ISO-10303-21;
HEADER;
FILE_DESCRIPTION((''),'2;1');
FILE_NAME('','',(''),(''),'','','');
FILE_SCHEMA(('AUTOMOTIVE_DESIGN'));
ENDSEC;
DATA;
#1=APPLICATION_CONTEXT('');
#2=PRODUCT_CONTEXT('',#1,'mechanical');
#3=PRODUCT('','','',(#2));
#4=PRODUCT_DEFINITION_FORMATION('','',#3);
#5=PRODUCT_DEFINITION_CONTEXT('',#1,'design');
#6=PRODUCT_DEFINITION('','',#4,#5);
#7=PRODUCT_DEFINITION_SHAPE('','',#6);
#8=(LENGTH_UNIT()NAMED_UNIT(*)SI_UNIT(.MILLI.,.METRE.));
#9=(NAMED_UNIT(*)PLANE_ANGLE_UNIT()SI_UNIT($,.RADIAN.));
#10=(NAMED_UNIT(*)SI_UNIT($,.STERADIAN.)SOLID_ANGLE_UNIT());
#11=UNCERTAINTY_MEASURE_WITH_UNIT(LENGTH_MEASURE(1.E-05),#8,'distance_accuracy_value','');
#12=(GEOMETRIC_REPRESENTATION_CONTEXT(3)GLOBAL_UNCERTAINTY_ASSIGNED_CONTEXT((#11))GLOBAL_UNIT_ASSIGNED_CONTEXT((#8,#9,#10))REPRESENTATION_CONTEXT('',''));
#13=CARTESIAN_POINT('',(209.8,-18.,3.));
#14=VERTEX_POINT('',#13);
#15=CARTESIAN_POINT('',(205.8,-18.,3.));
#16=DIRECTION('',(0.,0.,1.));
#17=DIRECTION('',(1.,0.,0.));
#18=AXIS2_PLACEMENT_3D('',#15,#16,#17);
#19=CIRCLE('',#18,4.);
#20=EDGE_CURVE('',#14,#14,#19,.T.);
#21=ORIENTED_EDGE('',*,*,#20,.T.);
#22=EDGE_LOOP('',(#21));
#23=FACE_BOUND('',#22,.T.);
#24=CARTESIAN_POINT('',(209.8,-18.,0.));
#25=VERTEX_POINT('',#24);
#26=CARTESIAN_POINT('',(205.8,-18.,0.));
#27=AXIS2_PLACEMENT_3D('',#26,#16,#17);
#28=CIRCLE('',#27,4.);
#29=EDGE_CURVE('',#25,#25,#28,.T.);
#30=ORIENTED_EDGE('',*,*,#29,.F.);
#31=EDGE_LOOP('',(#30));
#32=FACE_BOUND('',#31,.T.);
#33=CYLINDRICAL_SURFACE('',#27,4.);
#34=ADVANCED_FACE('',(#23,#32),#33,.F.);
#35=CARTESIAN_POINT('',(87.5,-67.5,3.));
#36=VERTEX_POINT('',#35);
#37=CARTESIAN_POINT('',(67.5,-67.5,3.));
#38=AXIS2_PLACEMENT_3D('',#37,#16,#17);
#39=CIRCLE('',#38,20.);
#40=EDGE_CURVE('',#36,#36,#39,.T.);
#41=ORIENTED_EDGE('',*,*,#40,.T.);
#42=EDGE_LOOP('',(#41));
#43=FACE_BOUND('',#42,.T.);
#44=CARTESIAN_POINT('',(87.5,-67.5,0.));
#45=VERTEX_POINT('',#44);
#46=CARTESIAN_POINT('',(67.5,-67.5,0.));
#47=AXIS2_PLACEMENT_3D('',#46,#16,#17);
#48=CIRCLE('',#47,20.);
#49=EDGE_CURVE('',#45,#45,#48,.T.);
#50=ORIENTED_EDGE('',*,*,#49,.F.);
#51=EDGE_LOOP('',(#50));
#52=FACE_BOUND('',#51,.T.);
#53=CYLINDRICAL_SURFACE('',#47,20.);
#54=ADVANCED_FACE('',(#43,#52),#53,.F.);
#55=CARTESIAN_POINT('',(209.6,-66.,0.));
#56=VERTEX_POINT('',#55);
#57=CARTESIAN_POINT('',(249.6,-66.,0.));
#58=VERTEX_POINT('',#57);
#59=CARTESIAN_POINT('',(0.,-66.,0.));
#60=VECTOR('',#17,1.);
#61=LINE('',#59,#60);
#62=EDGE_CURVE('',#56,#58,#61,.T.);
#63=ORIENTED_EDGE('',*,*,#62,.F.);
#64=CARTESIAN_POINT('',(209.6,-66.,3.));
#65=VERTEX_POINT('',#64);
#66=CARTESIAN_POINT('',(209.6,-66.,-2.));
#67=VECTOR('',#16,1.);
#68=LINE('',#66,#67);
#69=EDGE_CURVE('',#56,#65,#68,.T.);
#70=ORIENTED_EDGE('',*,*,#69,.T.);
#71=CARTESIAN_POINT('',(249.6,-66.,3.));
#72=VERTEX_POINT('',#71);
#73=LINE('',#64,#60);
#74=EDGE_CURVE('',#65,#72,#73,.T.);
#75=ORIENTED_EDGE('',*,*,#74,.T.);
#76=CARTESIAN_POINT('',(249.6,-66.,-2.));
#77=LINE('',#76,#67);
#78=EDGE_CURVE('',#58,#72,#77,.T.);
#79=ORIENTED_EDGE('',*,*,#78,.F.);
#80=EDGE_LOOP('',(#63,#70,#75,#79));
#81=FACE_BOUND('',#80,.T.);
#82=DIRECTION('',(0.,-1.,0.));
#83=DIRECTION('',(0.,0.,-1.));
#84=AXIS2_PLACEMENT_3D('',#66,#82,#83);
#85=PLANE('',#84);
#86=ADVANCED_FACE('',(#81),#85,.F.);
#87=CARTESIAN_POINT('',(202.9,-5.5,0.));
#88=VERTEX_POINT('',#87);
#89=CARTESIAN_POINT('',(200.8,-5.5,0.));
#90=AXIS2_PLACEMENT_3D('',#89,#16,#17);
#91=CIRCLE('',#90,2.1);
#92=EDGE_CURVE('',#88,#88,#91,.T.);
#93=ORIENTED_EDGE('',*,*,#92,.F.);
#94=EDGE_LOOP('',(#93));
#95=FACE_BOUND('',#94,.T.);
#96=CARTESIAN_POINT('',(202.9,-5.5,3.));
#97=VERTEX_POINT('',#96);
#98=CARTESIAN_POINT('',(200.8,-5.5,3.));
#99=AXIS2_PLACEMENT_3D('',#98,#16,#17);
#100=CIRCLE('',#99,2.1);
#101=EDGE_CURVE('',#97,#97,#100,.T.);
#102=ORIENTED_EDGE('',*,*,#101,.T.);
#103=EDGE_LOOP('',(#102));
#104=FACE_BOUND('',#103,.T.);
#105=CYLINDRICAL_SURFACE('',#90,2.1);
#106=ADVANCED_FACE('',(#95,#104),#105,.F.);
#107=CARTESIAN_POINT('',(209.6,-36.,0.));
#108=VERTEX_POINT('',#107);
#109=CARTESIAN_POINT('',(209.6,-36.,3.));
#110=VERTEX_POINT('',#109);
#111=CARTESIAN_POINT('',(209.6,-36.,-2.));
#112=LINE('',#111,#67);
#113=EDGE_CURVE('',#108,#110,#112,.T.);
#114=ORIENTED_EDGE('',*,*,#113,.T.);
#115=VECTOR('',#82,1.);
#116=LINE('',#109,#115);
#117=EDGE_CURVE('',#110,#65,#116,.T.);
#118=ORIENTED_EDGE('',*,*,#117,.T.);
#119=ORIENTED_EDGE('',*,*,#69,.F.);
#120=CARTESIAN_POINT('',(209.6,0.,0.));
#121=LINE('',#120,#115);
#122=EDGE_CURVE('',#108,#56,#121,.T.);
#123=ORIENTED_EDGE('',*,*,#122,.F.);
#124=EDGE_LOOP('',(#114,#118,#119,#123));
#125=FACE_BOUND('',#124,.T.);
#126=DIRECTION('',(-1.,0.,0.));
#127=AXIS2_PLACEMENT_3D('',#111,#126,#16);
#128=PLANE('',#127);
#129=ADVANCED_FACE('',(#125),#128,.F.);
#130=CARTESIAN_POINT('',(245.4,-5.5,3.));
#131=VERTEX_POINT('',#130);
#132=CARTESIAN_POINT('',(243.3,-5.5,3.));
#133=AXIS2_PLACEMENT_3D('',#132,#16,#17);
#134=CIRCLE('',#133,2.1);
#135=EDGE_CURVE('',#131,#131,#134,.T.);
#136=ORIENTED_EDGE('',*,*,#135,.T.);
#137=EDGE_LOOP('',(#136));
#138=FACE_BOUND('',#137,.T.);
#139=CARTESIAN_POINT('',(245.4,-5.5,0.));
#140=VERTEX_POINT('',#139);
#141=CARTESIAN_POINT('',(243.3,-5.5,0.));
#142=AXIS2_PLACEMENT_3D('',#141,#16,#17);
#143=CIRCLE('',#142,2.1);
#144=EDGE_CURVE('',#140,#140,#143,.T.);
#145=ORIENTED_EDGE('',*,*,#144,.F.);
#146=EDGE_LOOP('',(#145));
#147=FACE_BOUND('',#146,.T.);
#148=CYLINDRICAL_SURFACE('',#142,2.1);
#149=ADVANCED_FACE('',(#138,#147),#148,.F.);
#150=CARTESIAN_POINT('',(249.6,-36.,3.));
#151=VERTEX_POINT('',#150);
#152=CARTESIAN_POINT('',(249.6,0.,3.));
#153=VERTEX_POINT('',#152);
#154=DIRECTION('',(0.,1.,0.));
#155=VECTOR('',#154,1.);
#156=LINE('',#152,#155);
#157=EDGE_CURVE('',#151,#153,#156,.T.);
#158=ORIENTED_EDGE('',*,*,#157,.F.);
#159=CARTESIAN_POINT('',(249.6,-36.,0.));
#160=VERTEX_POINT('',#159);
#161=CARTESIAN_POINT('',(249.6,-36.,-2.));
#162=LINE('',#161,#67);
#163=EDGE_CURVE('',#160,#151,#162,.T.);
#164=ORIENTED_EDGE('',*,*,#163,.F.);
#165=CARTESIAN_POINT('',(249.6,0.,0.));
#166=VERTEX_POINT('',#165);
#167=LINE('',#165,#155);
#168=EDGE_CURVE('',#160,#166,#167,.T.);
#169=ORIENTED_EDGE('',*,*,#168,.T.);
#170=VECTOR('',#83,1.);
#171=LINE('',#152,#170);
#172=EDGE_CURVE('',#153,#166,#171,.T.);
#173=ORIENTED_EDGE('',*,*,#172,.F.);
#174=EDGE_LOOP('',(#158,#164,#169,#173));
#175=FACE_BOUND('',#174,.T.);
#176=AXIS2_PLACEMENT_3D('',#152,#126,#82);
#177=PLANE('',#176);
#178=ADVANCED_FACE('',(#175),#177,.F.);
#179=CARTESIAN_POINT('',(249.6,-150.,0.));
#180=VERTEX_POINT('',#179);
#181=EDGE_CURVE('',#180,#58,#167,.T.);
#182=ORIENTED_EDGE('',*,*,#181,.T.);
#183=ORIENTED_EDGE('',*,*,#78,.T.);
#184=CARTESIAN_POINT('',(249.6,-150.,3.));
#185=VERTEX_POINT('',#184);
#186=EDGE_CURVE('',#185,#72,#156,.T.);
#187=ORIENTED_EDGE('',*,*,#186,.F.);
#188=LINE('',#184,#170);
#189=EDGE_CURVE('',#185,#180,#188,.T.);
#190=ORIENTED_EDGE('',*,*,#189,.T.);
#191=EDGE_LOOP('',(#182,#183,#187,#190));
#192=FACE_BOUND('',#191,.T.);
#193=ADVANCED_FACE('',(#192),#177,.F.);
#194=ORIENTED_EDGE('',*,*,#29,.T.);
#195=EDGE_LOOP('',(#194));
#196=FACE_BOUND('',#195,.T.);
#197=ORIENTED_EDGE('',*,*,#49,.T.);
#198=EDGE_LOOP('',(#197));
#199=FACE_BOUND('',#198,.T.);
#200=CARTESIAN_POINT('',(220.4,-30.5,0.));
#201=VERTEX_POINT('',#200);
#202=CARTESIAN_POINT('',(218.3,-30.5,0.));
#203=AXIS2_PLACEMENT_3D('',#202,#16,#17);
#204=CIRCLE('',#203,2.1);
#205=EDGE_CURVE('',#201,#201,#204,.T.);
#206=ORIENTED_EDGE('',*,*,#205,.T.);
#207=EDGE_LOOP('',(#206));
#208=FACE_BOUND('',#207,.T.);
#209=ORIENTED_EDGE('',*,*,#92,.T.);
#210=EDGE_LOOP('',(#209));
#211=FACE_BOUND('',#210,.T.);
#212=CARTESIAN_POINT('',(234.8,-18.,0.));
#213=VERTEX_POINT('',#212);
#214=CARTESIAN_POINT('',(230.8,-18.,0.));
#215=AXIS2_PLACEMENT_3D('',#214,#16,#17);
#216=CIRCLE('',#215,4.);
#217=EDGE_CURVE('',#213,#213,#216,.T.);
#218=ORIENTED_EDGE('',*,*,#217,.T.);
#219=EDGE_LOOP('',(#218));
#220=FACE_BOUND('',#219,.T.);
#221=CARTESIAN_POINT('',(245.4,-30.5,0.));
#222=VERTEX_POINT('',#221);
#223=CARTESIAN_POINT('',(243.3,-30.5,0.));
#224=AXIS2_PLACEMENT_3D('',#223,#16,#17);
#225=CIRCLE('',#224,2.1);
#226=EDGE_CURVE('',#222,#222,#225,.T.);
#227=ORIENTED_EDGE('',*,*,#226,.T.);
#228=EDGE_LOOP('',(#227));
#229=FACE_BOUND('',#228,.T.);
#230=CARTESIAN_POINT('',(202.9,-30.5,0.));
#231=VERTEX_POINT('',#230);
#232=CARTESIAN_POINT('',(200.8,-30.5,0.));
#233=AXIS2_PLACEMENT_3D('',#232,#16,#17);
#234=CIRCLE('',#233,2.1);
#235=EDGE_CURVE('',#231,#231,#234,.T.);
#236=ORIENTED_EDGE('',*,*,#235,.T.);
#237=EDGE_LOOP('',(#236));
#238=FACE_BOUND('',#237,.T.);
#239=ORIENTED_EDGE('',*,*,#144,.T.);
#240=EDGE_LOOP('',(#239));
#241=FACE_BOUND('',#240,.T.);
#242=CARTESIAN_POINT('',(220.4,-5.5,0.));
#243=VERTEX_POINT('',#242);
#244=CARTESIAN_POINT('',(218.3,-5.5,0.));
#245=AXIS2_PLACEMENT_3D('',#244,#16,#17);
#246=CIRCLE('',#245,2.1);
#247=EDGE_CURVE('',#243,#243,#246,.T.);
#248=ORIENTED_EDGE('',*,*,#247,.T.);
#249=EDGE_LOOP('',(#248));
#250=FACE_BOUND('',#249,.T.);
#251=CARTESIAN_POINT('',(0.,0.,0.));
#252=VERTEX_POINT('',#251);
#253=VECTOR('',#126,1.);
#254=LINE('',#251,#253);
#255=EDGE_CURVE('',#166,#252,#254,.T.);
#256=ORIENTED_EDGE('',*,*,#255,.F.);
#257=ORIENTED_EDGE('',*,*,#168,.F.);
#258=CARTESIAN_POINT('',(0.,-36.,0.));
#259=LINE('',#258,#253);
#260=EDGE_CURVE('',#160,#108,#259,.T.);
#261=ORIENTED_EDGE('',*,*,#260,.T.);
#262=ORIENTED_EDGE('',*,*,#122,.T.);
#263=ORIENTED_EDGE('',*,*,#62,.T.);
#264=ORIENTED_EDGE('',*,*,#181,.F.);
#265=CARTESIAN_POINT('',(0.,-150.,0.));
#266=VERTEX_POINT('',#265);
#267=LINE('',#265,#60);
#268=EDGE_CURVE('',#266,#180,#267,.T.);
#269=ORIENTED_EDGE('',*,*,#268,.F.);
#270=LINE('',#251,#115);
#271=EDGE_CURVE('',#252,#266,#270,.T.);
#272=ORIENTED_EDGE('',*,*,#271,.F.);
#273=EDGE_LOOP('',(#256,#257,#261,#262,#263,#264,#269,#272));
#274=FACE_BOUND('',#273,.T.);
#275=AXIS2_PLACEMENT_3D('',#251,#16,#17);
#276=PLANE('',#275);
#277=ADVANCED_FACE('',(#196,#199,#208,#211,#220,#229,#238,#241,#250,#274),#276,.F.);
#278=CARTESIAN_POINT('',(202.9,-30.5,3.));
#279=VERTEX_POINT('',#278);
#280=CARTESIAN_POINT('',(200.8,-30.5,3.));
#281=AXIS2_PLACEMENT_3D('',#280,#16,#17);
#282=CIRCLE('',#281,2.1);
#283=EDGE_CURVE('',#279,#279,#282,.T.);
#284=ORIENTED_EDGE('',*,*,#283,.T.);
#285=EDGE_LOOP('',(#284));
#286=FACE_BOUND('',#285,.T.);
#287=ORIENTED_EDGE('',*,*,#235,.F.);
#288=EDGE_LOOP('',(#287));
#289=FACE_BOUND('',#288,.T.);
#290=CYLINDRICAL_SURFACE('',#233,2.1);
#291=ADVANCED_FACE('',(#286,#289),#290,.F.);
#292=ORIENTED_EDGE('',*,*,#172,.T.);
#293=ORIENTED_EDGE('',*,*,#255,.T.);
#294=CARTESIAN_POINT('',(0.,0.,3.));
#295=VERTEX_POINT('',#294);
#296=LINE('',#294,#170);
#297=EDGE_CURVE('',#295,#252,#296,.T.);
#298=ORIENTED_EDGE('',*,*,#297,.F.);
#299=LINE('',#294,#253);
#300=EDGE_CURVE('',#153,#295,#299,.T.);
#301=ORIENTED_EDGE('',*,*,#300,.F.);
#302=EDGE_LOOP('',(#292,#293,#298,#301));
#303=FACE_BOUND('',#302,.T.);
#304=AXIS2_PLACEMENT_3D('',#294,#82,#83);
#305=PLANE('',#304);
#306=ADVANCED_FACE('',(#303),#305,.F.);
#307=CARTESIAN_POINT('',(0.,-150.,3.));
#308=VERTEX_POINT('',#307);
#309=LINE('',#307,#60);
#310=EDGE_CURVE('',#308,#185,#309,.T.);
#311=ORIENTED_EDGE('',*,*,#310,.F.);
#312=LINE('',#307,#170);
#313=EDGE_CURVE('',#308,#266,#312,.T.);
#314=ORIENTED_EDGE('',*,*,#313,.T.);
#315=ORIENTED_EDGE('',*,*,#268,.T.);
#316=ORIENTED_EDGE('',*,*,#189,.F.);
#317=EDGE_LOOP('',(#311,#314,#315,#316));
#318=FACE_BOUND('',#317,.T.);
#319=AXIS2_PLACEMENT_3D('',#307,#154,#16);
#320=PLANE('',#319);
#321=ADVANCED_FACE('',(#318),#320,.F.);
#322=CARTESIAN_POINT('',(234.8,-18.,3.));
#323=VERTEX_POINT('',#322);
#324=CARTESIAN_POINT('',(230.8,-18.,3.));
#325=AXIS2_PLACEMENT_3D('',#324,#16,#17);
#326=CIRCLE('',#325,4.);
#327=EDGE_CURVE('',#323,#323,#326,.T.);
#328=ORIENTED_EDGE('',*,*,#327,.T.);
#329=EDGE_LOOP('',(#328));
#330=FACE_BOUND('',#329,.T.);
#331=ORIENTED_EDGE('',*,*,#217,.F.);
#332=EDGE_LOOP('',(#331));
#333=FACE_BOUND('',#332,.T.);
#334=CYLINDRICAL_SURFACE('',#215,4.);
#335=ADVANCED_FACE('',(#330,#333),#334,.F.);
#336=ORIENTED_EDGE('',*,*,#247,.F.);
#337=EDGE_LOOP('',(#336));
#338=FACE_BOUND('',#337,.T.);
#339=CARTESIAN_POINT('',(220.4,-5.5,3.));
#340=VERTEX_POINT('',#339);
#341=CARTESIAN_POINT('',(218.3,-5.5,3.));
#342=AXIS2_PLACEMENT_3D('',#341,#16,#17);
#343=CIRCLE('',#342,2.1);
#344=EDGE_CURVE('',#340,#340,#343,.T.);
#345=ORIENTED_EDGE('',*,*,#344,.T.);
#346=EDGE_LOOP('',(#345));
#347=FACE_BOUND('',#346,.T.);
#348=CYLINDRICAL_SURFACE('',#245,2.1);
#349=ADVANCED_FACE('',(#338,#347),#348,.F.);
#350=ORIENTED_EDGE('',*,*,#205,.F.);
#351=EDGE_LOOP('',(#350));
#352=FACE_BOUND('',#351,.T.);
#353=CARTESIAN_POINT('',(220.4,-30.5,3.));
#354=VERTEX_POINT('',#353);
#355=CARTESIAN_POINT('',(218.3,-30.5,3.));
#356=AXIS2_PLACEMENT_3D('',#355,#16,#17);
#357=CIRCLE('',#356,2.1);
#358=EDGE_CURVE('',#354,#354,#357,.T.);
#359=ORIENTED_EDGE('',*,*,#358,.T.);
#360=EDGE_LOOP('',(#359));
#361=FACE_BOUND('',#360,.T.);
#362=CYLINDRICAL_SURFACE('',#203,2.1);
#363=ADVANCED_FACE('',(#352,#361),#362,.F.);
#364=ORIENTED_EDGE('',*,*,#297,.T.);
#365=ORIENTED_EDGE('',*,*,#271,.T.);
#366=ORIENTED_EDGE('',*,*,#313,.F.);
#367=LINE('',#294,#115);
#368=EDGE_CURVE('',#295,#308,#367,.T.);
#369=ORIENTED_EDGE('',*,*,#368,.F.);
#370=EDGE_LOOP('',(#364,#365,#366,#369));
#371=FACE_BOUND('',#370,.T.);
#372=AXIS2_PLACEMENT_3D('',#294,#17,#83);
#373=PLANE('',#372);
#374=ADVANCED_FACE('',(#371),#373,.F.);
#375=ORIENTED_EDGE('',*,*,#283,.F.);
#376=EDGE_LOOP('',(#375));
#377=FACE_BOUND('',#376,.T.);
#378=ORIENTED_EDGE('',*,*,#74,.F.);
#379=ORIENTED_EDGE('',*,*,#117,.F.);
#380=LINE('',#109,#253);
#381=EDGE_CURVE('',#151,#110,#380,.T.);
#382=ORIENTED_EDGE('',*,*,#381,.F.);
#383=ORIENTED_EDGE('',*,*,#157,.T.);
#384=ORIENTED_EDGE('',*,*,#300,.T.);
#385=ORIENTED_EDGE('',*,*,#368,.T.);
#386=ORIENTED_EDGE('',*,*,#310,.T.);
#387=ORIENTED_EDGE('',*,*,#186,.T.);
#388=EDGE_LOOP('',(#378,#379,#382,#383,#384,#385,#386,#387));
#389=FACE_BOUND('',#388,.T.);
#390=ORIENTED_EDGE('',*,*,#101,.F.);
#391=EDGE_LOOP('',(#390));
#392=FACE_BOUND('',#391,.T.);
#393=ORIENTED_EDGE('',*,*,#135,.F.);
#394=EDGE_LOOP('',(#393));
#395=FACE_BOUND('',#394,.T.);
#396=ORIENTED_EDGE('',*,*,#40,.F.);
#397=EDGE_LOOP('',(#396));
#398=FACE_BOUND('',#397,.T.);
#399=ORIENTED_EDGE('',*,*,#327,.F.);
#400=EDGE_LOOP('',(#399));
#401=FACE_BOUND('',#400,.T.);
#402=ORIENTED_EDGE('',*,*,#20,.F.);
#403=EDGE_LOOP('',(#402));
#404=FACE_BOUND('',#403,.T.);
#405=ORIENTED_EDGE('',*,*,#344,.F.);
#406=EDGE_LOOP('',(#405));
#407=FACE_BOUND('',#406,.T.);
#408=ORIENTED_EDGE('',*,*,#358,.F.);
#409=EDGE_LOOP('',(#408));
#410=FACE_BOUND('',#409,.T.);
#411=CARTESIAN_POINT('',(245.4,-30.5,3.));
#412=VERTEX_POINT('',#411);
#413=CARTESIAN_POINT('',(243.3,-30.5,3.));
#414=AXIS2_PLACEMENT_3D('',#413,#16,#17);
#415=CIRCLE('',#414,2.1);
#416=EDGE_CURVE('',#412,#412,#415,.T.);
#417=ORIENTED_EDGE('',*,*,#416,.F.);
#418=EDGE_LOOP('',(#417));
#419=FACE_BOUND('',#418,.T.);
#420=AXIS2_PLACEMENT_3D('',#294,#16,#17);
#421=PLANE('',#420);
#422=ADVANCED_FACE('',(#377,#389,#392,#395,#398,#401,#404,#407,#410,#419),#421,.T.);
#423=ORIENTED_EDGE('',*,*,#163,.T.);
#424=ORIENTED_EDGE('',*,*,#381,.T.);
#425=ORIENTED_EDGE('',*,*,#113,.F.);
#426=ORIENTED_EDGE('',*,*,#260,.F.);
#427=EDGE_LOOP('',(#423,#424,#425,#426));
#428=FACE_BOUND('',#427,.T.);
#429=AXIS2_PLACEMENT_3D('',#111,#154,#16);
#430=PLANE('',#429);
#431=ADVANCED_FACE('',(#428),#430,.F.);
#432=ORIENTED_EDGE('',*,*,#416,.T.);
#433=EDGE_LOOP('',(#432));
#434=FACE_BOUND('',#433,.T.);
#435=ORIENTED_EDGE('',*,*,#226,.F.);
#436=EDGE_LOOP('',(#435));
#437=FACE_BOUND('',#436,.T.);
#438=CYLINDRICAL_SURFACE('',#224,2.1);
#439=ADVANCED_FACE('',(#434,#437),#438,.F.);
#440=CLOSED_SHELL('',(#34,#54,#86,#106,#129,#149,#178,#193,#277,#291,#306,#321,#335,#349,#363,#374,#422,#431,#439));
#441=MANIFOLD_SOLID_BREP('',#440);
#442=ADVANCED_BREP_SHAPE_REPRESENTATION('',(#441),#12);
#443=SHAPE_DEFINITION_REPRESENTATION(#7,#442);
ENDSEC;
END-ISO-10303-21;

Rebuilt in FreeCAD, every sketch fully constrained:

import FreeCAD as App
import Part
import Sketcher
from FreeCAD import Vector

doc = App.newDocument("Part")
body = doc.addObject("PartDesign::Body", "Body")

sketch1 = doc.addObject("Sketcher::SketchObject", "Sketch")
body.addObject(sketch1)
sketch1.AttachmentSupport = (doc.XY_Plane, [""])
sketch1.MapMode = "FlatFace"
sketch1.addGeometry([
    Part.LineSegment(Vector(0, 0, 0), Vector(0, -150, 0)),
    Part.LineSegment(Vector(0, -150, 0), Vector(250, -150, 0)),
    Part.LineSegment(Vector(250, -150, 0), Vector(250, 0, 0)),
    Part.LineSegment(Vector(250, 0, 0), Vector(0, 0, 0)),
], False)
sketch1.addConstraint([
    Sketcher.Constraint("Coincident", 0, 2, 1, 1),
    Sketcher.Constraint("Coincident", 1, 2, 2, 1),
    Sketcher.Constraint("Coincident", 2, 2, 3, 1),
    Sketcher.Constraint("Coincident", 3, 2, 0, 1),
    Sketcher.Constraint("Vertical", 0),
    Sketcher.Constraint("Horizontal", 1),
    Sketcher.Constraint("Vertical", 2),
    Sketcher.Constraint("Horizontal", 3),
    Sketcher.Constraint("Coincident", 3, 2, -1, 1),
    Sketcher.Constraint("DistanceY", 0, 2, 0, 1, 150.0),
    Sketcher.Constraint("DistanceX", 1, 1, 1, 2, 249.6),
])
pad1 = doc.addObject("PartDesign::Pad", "Pad")
body.addObject(pad1)
pad1.Profile = sketch1
pad1.Length = 3

sketch2 = doc.addObject("Sketcher::SketchObject", "Sketch001")
body.addObject(sketch2)
sketch2.AttachmentSupport = (doc.XY_Plane, [""])
sketch2.MapMode = "FlatFace"
sketch2.AttachmentOffset = App.Placement(Vector(0, 0, 3), App.Rotation())
sketch2.addGeometry(Part.Circle(Vector(68, -68, 0), Vector(0, 0, 1), 20), False)
sketch2.addConstraint([
    Sketcher.Constraint("Diameter", 0, 40.0),
    Sketcher.Constraint("DistanceX", -1, 1, 0, 3, 67.5),
    Sketcher.Constraint("DistanceY", 0, 3, -1, 1, 67.5),
])
pocket1 = doc.addObject("PartDesign::Pocket", "Pocket")
body.addObject(pocket1)
pocket1.Profile = sketch2
pocket1.Type = "ThroughAll"

sketch3 = doc.addObject("Sketcher::SketchObject", "Sketch002")
body.addObject(sketch3)
sketch3.AttachmentSupport = (doc.XY_Plane, [""])
sketch3.MapMode = "FlatFace"
sketch3.AttachmentOffset = App.Placement(Vector(0, 0, 3), App.Rotation())
sketch3.addGeometry([
    Part.LineSegment(Vector(210, -36, 0), Vector(210, -66, 0)),
    Part.LineSegment(Vector(210, -66, 0), Vector(250, -66, 0)),
    Part.LineSegment(Vector(250, -66, 0), Vector(250, -36, 0)),
    Part.LineSegment(Vector(250, -36, 0), Vector(210, -36, 0)),
], False)
sketch3.addConstraint([
    Sketcher.Constraint("Coincident", 0, 2, 1, 1),
    Sketcher.Constraint("Coincident", 1, 2, 2, 1),
    Sketcher.Constraint("Coincident", 2, 2, 3, 1),
    Sketcher.Constraint("Coincident", 3, 2, 0, 1),
    Sketcher.Constraint("Vertical", 0),
    Sketcher.Constraint("Horizontal", 1),
    Sketcher.Constraint("Vertical", 2),
    Sketcher.Constraint("Horizontal", 3),
    Sketcher.Constraint("DistanceX", 1, 1, 1, 2, 40.0),
    Sketcher.Constraint("DistanceY", 0, 2, 0, 1, 30.0),
    Sketcher.Constraint("DistanceY", 0, 2, -1, 1, 66.0),
    Sketcher.Constraint("DistanceX", -1, 1, 0, 2, 209.6),
])
pocket2 = doc.addObject("PartDesign::Pocket", "Pocket001")
body.addObject(pocket2)
pocket2.Profile = sketch3
pocket2.Length = 5

sketch4 = doc.addObject("Sketcher::SketchObject", "Sketch003")
body.addObject(sketch4)
sketch4.AttachmentSupport = (doc.XY_Plane, [""])
sketch4.MapMode = "FlatFace"
sketch4.AttachmentOffset = App.Placement(Vector(0, 0, 3), App.Rotation())
sketch4.addGeometry([
    Part.Circle(Vector(200.8, -5.5, 0), Vector(0, 0, 1), 2.1),
    Part.Circle(Vector(218.3, -5.5, 0), Vector(0, 0, 1), 2.1),
    Part.Circle(Vector(205.8, -18, 0), Vector(0, 0, 1), 4),
    Part.Circle(Vector(200.8, -30.5, 0), Vector(0, 0, 1), 2.1),
    Part.Circle(Vector(218.3, -30.5, 0), Vector(0, 0, 1), 2.1),
    Part.Circle(Vector(243.3, -5.5, 0), Vector(0, 0, 1), 2.1),
    Part.Circle(Vector(243.3, -30.5, 0), Vector(0, 0, 1), 2.1),
    Part.Circle(Vector(230.8, -18, 0), Vector(0, 0, 1), 4),
], False)
sketch4.addConstraint([
    Sketcher.Constraint("Equal", 0, 1),
    Sketcher.Constraint("Equal", 1, 3),
    Sketcher.Constraint("Equal", 3, 4),
    Sketcher.Constraint("Equal", 4, 5),
    Sketcher.Constraint("Equal", 5, 6),
    Sketcher.Constraint("Equal", 2, 7),
    Sketcher.Constraint("Horizontal", 0, 3, 1, 3),
    Sketcher.Constraint("Horizontal", 3, 3, 4, 3),
    Sketcher.Constraint("Horizontal", 1, 3, 5, 3),
    Sketcher.Constraint("Horizontal", 4, 3, 6, 3),
    Sketcher.Constraint("Horizontal", 2, 3, 7, 3),
    Sketcher.Constraint("Vertical", 0, 3, 3, 3),
    Sketcher.Constraint("Vertical", 1, 3, 4, 3),
    Sketcher.Constraint("Vertical", 5, 3, 6, 3),
    Sketcher.Constraint("Diameter", 2, 8.0),
    Sketcher.Constraint("Diameter", 0, 4.2),
    Sketcher.Constraint("DistanceY", 2, 3, -1, 1, 18.0),
    Sketcher.Constraint("DistanceX", 0, 3, 2, 3, 5.0),
    Sketcher.Constraint("DistanceY", 3, 3, 0, 3, 25.0),
    Sketcher.Constraint("DistanceX", 1, 3, 5, 3, 25.0),
    Sketcher.Constraint("DistanceX", 2, 3, 7, 3, 25.0),
    Sketcher.Constraint("DistanceX", -1, 1, 0, 3, 200.8),
    Sketcher.Constraint("DistanceY", 0, 3, -1, 1, 5.5),
    Sketcher.Constraint("DistanceX", -1, 1, 1, 3, 218.3),
])
pocket3 = doc.addObject("PartDesign::Pocket", "Pocket002")
body.addObject(pocket3)
pocket3.Profile = sketch4
pocket3.Type = "ThroughAll"

doc.recompute()
